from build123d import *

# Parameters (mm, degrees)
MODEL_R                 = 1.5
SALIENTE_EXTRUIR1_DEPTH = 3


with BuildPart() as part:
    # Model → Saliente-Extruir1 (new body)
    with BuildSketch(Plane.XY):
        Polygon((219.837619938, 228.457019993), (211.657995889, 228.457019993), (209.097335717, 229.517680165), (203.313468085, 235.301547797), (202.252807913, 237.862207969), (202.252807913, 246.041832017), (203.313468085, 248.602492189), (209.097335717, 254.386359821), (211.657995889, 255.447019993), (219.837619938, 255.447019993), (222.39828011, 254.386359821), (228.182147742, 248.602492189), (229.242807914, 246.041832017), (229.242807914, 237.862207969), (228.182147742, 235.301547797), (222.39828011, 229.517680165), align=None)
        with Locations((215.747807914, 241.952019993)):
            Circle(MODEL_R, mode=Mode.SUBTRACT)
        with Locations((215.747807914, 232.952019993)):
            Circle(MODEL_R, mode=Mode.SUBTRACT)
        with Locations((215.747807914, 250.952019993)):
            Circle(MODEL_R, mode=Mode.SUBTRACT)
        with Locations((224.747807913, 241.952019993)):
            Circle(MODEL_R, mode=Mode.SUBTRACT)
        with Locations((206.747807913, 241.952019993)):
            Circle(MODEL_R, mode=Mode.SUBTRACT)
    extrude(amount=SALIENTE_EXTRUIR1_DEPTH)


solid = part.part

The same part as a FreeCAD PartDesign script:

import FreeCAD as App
import Part
import Sketcher
from FreeCAD import Vector
Q = App.Units.Quantity


def add_polygon(sketch, points):
    """Adds a closed chain of lines whose ends are joined by coincident constraints."""
    first, n = sketch.GeometryCount, len(points)
    for a, b in zip(points, points[1:] + points[:1]):
        sketch.addGeometry(Part.LineSegment(App.Vector(*a, 0), App.Vector(*b, 0)), False)
    for i in range(n):
        sketch.addConstraint(Sketcher.Constraint("Coincident", first + i, 2, first + (i + 1) % n, 1))

doc = App.newDocument("Part")
body = doc.addObject("PartDesign::Body", "Body")

sketch1 = doc.addObject("Sketcher::SketchObject", "Sketch")
body.addObject(sketch1)
sketch1.AttachmentSupport = (doc.XY_Plane, [""])
sketch1.MapMode = "FlatFace"
add_polygon(sketch1, [(211.7, 228.5), (219.8, 228.5), (222.4, 229.5), (228.2, 235.3), (229.2, 237.9), (229.2, 246), (228.2, 248.6), (222.4, 254.4), (219.8, 255.4), (211.7, 255.4), (209.1, 254.4), (203.3, 248.6), (202.3, 246), (202.3, 237.9), (203.3, 235.3), (209.1, 229.5)])
sketch1.addGeometry(Part.Circle(Vector(215.7, 233, 0), Vector(0, 0, 1), 1.5), False)
sketch1.addGeometry(Part.Circle(Vector(224.7, 242, 0), Vector(0, 0, 1), 1.5), False)
sketch1.addGeometry(Part.Circle(Vector(215.7, 242, 0), Vector(0, 0, 1), 1.5), False)
sketch1.addGeometry(Part.Circle(Vector(215.7, 251, 0), Vector(0, 0, 1), 1.5), False)
sketch1.addGeometry(Part.Circle(Vector(206.7, 242, 0), Vector(0, 0, 1), 1.5), False)
sketch1.addConstraint(Sketcher.Constraint("Horizontal", 0))
sketch1.addConstraint(Sketcher.Constraint("Vertical", 4))
sketch1.addConstraint(Sketcher.Constraint("Horizontal", 8))
sketch1.addConstraint(Sketcher.Constraint("Vertical", 12))
sketch1.addConstraint(Sketcher.Constraint("Equal", 16, 17))
sketch1.addConstraint(Sketcher.Constraint("Equal", 17, 18))
sketch1.addConstraint(Sketcher.Constraint("Equal", 18, 19))
sketch1.addConstraint(Sketcher.Constraint("Equal", 19, 20))
sketch1.addConstraint(Sketcher.Constraint("Perpendicular", 1, 5))
sketch1.addConstraint(Sketcher.Constraint("Perpendicular", 2, 6))
sketch1.addConstraint(Sketcher.Constraint("Perpendicular", 3, 7))
sketch1.addConstraint(Sketcher.Constraint("Perpendicular", 5, 9))
sketch1.addConstraint(Sketcher.Constraint("Perpendicular", 6, 10))
sketch1.addConstraint(Sketcher.Constraint("Perpendicular", 7, 11))
sketch1.addConstraint(Sketcher.Constraint("Perpendicular", 9, 13))
sketch1.addConstraint(Sketcher.Constraint("Perpendicular", 10, 14))
sketch1.addConstraint(Sketcher.Constraint("Perpendicular", 11, 15))
sketch1.addConstraint(Sketcher.Constraint("Horizontal", 17, 3, 18, 3))
sketch1.addConstraint(Sketcher.Constraint("Horizontal", 18, 3, 20, 3))
sketch1.addConstraint(Sketcher.Constraint("Horizontal", 6, 2, 9, 2))
sketch1.addConstraint(Sketcher.Constraint("Horizontal", 5, 2, 10, 2))
sketch1.addConstraint(Sketcher.Constraint("Horizontal", 4, 2, 11, 2))
sketch1.addConstraint(Sketcher.Constraint("Horizontal", 3, 2, 12, 2))
sketch1.addConstraint(Sketcher.Constraint("Horizontal", 2, 2, 13, 2))
sketch1.addConstraint(Sketcher.Constraint("Horizontal", 1, 2, 14, 2))
sketch1.addConstraint(Sketcher.Constraint("Vertical", 16, 3, 18, 3))
sketch1.addConstraint(Sketcher.Constraint("Vertical", 18, 3, 19, 3))
sketch1.addConstraint(Sketcher.Constraint("Vertical", 2, 2, 5, 2))
sketch1.addConstraint(Sketcher.Constraint("Vertical", 1, 2, 6, 2))
sketch1.addConstraint(Sketcher.Constraint("Vertical", 0, 2, 7, 2))
sketch1.addConstraint(Sketcher.Constraint("Vertical", 10, 2, 13, 2))
sketch1.addConstraint(Sketcher.Constraint("Vertical", 9, 2, 14, 2))
sketch1.addConstraint(Sketcher.Constraint("Equal", 8, 4))
sketch1.addConstraint(Sketcher.Constraint("Equal", 1, 3))
sketch1.addConstraint(Sketcher.Constraint("Diameter", 16, 3.0))
sketch1.addConstraint(Sketcher.Constraint("Angle", 1, Q("22.5 deg")))
sketch1.addConstraint(Sketcher.Constraint("DistanceX", 16, 3, 17, 3, 9.0))
sketch1.addConstraint(Sketcher.Constraint("DistanceY", 16, 3, 17, 3, 9.0))
sketch1.addConstraint(Sketcher.Constraint("DistanceY", 18, 3, 19, 3, 9.0))
sketch1.addConstraint(Sketcher.Constraint("DistanceX", 20, 3, 18, 3, 9.0))
sketch1.addConstraint(Sketcher.Constraint("DistanceY", 0, 2, 16, 3, 4.495))
sketch1.addConstraint(Sketcher.Constraint("DistanceX", 17, 3, 3, 2, 4.495))
sketch1.addConstraint(Sketcher.Constraint("DistanceY", 19, 3, 7, 2, 4.495))
sketch1.addConstraint(Sketcher.Constraint("Distance", 1, 2.771639))
sketch1.addConstraint(Sketcher.Constraint("DistanceX", 0, 1, 0, 2, 8.179624))
sketch1.addConstraint(Sketcher.Constraint("DistanceY", -1, 1, 16, 3, 232.95202))
sketch1.addConstraint(Sketcher.Constraint("DistanceX", -1, 1, 0, 2, 219.83762))
pad1 = doc.addObject("PartDesign::Pad", "Pad")
body.addObject(pad1)
pad1.Profile = sketch1
pad1.Length = 3

doc.recompute()
